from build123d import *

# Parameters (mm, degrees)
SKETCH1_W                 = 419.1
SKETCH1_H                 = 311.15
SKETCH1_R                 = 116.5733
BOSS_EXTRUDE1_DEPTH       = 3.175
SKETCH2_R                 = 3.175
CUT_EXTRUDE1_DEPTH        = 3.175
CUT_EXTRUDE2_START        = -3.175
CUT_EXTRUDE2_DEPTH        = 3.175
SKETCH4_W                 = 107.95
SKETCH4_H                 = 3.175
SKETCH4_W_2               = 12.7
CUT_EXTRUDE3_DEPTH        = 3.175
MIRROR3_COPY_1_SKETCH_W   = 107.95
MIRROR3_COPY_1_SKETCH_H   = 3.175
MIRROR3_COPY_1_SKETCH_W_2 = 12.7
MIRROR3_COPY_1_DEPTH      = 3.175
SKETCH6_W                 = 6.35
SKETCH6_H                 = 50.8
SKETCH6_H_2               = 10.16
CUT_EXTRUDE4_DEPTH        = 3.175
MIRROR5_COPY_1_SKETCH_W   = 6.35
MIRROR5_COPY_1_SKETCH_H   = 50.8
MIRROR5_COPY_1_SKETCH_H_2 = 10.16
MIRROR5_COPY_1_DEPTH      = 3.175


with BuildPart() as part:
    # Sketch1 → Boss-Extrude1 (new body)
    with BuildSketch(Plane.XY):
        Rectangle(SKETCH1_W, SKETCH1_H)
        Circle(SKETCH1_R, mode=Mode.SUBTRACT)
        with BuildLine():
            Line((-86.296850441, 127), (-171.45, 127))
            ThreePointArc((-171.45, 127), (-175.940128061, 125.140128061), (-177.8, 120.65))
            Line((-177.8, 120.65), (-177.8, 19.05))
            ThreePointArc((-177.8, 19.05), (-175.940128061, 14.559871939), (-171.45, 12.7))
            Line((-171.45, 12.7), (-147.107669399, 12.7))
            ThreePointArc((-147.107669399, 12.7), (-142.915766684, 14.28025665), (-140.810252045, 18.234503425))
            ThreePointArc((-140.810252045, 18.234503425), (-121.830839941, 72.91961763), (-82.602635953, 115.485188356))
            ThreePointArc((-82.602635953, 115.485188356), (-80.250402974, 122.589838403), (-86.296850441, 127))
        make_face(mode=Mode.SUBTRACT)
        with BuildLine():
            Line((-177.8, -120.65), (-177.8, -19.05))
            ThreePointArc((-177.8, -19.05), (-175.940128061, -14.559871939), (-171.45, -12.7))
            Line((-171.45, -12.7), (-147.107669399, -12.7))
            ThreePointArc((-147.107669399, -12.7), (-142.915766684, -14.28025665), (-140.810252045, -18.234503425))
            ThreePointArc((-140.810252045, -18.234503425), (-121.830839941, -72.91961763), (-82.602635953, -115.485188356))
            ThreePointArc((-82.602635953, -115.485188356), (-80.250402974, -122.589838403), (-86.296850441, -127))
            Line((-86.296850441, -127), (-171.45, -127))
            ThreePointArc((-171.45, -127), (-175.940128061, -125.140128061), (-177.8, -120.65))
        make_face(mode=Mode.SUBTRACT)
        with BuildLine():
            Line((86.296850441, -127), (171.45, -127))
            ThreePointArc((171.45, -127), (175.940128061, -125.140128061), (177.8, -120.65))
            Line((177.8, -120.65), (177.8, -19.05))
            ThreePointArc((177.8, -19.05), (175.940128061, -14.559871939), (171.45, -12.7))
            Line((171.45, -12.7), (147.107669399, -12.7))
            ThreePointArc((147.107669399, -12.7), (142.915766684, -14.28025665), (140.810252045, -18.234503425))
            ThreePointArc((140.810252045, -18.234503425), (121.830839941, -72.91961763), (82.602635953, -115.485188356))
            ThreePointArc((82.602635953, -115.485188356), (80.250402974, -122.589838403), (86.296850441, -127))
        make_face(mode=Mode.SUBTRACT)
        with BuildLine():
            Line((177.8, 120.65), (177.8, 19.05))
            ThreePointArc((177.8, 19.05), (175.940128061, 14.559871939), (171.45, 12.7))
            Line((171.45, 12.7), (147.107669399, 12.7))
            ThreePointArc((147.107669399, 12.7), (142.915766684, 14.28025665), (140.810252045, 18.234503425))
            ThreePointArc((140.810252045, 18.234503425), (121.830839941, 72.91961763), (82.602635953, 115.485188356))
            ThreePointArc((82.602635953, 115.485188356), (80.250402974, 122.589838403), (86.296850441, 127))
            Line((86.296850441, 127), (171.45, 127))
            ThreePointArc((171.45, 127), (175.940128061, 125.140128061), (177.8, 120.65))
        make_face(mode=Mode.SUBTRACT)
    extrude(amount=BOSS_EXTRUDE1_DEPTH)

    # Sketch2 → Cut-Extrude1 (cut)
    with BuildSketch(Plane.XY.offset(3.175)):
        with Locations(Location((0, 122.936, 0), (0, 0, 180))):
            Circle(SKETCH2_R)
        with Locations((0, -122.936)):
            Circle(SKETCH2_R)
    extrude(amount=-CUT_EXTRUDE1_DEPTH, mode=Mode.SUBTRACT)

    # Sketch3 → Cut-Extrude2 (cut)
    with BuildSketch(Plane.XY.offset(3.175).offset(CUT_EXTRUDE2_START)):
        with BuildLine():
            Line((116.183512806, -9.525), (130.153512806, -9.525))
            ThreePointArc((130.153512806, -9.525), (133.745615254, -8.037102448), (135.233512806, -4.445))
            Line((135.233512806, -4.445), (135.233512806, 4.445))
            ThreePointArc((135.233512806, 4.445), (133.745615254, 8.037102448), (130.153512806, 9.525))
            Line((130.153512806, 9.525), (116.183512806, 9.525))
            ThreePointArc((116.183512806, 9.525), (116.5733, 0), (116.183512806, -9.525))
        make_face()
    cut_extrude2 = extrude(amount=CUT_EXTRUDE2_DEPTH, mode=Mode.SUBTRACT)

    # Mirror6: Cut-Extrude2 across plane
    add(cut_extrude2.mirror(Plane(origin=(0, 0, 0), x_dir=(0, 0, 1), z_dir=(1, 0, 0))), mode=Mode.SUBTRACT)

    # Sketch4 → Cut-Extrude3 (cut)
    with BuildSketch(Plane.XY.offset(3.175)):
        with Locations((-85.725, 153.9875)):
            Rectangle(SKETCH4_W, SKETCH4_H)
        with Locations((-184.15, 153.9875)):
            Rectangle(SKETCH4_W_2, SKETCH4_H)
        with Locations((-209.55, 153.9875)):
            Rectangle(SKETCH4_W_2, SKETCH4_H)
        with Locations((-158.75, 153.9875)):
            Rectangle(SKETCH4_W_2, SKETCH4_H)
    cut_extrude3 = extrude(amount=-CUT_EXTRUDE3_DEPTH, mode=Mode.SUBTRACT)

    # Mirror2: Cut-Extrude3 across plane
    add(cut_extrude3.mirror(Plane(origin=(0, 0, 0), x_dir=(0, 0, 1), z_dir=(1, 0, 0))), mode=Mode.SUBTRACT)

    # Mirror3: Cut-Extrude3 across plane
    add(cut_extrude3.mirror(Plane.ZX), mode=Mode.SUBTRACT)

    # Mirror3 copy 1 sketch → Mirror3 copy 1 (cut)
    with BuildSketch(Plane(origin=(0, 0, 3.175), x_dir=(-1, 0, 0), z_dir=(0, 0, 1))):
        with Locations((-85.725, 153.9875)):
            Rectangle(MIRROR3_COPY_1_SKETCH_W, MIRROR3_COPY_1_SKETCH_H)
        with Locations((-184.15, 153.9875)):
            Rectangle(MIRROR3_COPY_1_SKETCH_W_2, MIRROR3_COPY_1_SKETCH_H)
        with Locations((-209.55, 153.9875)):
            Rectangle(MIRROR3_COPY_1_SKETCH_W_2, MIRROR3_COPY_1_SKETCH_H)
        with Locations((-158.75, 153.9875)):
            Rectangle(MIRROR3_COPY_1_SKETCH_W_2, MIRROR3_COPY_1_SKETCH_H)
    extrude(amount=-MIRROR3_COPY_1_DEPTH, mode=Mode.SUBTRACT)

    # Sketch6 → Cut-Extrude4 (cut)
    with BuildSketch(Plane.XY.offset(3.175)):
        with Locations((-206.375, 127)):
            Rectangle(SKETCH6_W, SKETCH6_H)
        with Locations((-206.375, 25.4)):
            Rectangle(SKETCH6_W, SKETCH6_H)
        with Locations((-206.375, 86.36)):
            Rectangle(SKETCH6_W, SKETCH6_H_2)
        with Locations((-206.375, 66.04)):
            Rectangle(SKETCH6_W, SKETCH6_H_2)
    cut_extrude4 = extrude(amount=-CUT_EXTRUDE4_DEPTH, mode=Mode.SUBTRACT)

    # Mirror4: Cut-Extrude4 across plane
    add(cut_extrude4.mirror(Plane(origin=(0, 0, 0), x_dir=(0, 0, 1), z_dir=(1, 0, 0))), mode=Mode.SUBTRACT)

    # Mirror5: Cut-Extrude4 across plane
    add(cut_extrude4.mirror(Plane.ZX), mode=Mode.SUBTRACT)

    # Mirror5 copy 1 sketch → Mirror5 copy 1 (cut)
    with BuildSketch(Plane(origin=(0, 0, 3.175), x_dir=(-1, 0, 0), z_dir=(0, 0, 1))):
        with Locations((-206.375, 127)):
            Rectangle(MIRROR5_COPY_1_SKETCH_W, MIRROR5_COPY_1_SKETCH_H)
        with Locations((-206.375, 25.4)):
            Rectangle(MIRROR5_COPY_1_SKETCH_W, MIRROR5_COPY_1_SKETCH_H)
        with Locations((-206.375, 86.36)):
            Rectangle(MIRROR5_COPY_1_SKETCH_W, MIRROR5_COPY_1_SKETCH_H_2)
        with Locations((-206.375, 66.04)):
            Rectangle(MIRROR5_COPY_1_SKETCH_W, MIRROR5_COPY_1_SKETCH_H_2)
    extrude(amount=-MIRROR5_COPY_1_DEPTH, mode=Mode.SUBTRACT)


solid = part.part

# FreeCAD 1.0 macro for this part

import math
import FreeCAD as App
import Part
import Sketcher

V = App.Vector
Q = App.Units.Quantity

doc = App.newDocument("Part")
body = doc.addObject("PartDesign::Body", "Body")

sketch1 = doc.addObject("Sketcher::SketchObject", "Sketch")
body.addObject(sketch1)
sketch1.AttachmentSupport = (doc.XY_Plane, [""])
sketch1.MapMode = "FlatFace"
sketch1.addGeometry([
    Part.LineSegment(V(-210, 156, 0), V(-210, -156, 0)),
    Part.LineSegment(V(-210, -156, 0), V(210, -156, 0)),
    Part.LineSegment(V(210, -156, 0), V(210, 156, 0)),
    Part.LineSegment(V(210, 156, 0), V(-210, 156, 0)),
    Part.ArcOfCircle(Part.Circle(V(-171, -121, 0), V(0, 0, 1), 6), math.radians(180), math.radians(270)),
    Part.LineSegment(V(-178, -121, 0), V(-178, -19, 0)),
    Part.ArcOfCircle(Part.Circle(V(-171, -19, 0), V(0, 0, 1), 6), math.radians(90), math.radians(180)),
    Part.LineSegment(V(-171, -13, 0), V(-147, -13, 0)),
    Part.ArcOfCircle(Part.Circle(V(-147, -19, 0), V(0, 0, 1), 6), math.radians(7), math.radians(90)),
    Part.ArcOfCircle(Part.Circle(V(0, 0, 0), V(0, 0, 1), 142), math.radians(-173), math.radians(-126)),
    Part.ArcOfCircle(Part.Circle(V(-86, -121, 0), V(0, 0, 1), 6), math.radians(-90), math.radians(54)),
    Part.LineSegment(V(-86, -127, 0), V(-171, -127, 0)),
    Part.LineSegment(V(171, -127, 0), V(86, -127, 0)),
    Part.ArcOfCircle(Part.Circle(V(86, -121, 0), V(0, 0, 1), 6), math.radians(126), math.radians(270)),
    Part.ArcOfCircle(Part.Circle(V(0, 0, 0), V(0, 0, 1), 142), math.radians(-54), math.radians(-7)),
    Part.ArcOfCircle(Part.Circle(V(147, -19, 0), V(0, 0, 1), 6), math.radians(90), math.radians(173)),
    Part.LineSegment(V(147, -13, 0), V(171, -13, 0)),
    Part.ArcOfCircle(Part.Circle(V(171, -19, 0), V(0, 0, 1), 6), math.radians(0), math.radians(90)),
    Part.LineSegment(V(178, -19, 0), V(178, -121, 0)),
    Part.ArcOfCircle(Part.Circle(V(171, -121, 0), V(0, 0, 1), 6), math.radians(-90), math.radians(0)),
    Part.LineSegment(V(-171, 127, 0), V(-86, 127, 0)),
    Part.ArcOfCircle(Part.Circle(V(-86, 121, 0), V(0, 0, 1), 6), math.radians(-54), math.radians(90)),
    Part.ArcOfCircle(Part.Circle(V(0, 0, 0), V(0, 0, 1), 142), math.radians(126), math.radians(173)),
    Part.ArcOfCircle(Part.Circle(V(-147, 19, 0), V(0, 0, 1), 6), math.radians(-90), math.radians(-7)),
    Part.LineSegment(V(-147, 13, 0), V(-171, 13, 0)),
    Part.ArcOfCircle(Part.Circle(V(-171, 19, 0), V(0, 0, 1), 6), math.radians(180), math.radians(270)),
    Part.LineSegment(V(-178, 19, 0), V(-178, 121, 0)),
    Part.ArcOfCircle(Part.Circle(V(-171, 121, 0), V(0, 0, 1), 6), math.radians(90), math.radians(180)),
    Part.Circle(V(0, 0, 0), V(0, 0, 1), 117),
    Part.ArcOfCircle(Part.Circle(V(171, 121, 0), V(0, 0, 1), 6), math.radians(0), math.radians(90)),
    Part.LineSegment(V(178, 121, 0), V(178, 19, 0)),
    Part.ArcOfCircle(Part.Circle(V(171, 19, 0), V(0, 0, 1), 6), math.radians(-90), math.radians(0)),
    Part.LineSegment(V(171, 13, 0), V(147, 13, 0)),
    Part.ArcOfCircle(Part.Circle(V(147, 19, 0), V(0, 0, 1), 6), math.radians(-173), math.radians(-90)),
    Part.ArcOfCircle(Part.Circle(V(0, 0, 0), V(0, 0, 1), 142), math.radians(7), math.radians(54)),
    Part.ArcOfCircle(Part.Circle(V(86, 121, 0), V(0, 0, 1), 6), math.radians(90), math.radians(234)),
    Part.LineSegment(V(86, 127, 0), V(171, 127, 0)),
], False)
sketch1.addConstraint([
    Sketcher.Constraint("Coincident", 0, 2, 1, 1),
    Sketcher.Constraint("Coincident", 1, 2, 2, 1),
    Sketcher.Constraint("Coincident", 2, 2, 3, 1),
    Sketcher.Constraint("Coincident", 3, 2, 0, 1),
    Sketcher.Constraint("Tangent", 4, 1, 5, 1),
    Sketcher.Constraint("Tangent", 5, 2, 6, 2),
    Sketcher.Constraint("Tangent", 6, 1, 7, 1),
    Sketcher.Constraint("Tangent", 7, 2, 8, 2),
    Sketcher.Constraint("Tangent", 8, 1, 9, 1),
    Sketcher.Constraint("Tangent", 9, 2, 10, 2),
    Sketcher.Constraint("Tangent", 10, 1, 11, 1),
    Sketcher.Constraint("Tangent", 11, 2, 4, 2),
    Sketcher.Constraint("Tangent", 12, 2, 13, 2),
    Sketcher.Constraint("Tangent", 13, 1, 14, 1),
    Sketcher.Constraint("Tangent", 14, 2, 15, 2),
    Sketcher.Constraint("Tangent", 15, 1, 16, 1),
    Sketcher.Constraint("Tangent", 16, 2, 17, 2),
    Sketcher.Constraint("Tangent", 17, 1, 18, 1),
    Sketcher.Constraint("Tangent", 18, 2, 19, 2),
    Sketcher.Constraint("Tangent", 19, 1, 12, 1),
    Sketcher.Constraint("Tangent", 20, 2, 21, 2),
    Sketcher.Constraint("Tangent", 21, 1, 22, 1),
    Sketcher.Constraint("Tangent", 22, 2, 23, 2),
    Sketcher.Constraint("Tangent", 23, 1, 24, 1),
    Sketcher.Constraint("Tangent", 24, 2, 25, 2),
    Sketcher.Constraint("Tangent", 25, 1, 26, 1),
    Sketcher.Constraint("Tangent", 26, 2, 27, 2),
    Sketcher.Constraint("Tangent", 27, 1, 20, 1),
    Sketcher.Constraint("Tangent", 29, 1, 30, 1),
    Sketcher.Constraint("Tangent", 30, 2, 31, 2),
    Sketcher.Constraint("Tangent", 31, 1, 32, 1),
    Sketcher.Constraint("Tangent", 32, 2, 33, 2),
    Sketcher.Constraint("Tangent", 33, 1, 34, 1),
    Sketcher.Constraint("Tangent", 34, 2, 35, 2),
    Sketcher.Constraint("Tangent", 35, 1, 36, 1),
    Sketcher.Constraint("Tangent", 36, 2, 29, 2),
    Sketcher.Constraint("Vertical", 0),
    Sketcher.Constraint("Horizontal", 1),
    Sketcher.Constraint("Vertical", 2),
    Sketcher.Constraint("Horizontal", 3),
    Sketcher.Constraint("Vertical", 5),
    Sketcher.Constraint("Horizontal", 7),
    Sketcher.Constraint("Horizontal", 11),
    Sketcher.Constraint("Horizontal", 12),
    Sketcher.Constraint("Horizontal", 16),
    Sketcher.Constraint("Vertical", 18),
    Sketcher.Constraint("Horizontal", 20),
    Sketcher.Constraint("Horizontal", 24),
    Sketcher.Constraint("Vertical", 26),
    Sketcher.Constraint("Vertical", 30),
    Sketcher.Constraint("Horizontal", 32),
    Sketcher.Constraint("Horizontal", 36),
    Sketcher.Constraint("Coincident", 9, 3, -1, 1),
    Sketcher.Constraint("Coincident", 14, 3, -1, 1),
    Sketcher.Constraint("Coincident", 22, 3, -1, 1),
    Sketcher.Constraint("Coincident", 28, 3, -1, 1),
    Sketcher.Constraint("Coincident", 34, 3, -1, 1),
    Sketcher.Constraint("Equal", 4, 6),
    Sketcher.Constraint("Equal", 6, 8),
    Sketcher.Constraint("Equal", 8, 10),
    Sketcher.Constraint("Equal", 10, 13),
    Sketcher.Constraint("Equal", 9, 14),
    Sketcher.Constraint("Equal", 13, 15),
    Sketcher.Constraint("Equal", 15, 17),
    Sketcher.Constraint("Equal", 17, 19),
    Sketcher.Constraint("Equal", 19, 21),
    Sketcher.Constraint("Equal", 14, 22),
    Sketcher.Constraint("Equal", 21, 23),
    Sketcher.Constraint("Equal", 23, 25),
    Sketcher.Constraint("Equal", 25, 27),
    Sketcher.Constraint("Equal", 27, 29),
    Sketcher.Constraint("Equal", 29, 31),
    Sketcher.Constraint("Equal", 31, 33),
    Sketcher.Constraint("Equal", 22, 34),
    Sketcher.Constraint("Equal", 33, 35),
    Sketcher.Constraint("Symmetric", 17, 3, 25, 3, -1, 1),
    Sketcher.Constraint("Symmetric", 4, 3, 29, 3, -1, 1),
    Sketcher.Constraint("Symmetric", 0, 2, 2, 2, -1, 1),
    Sketcher.Constraint("Symmetric", 6, 3, 17, 3, -2),
    Sketcher.Constraint("Horizontal", 10, 3, 13, 3),
    Sketcher.Constraint("Horizontal", 27, 3, 29, 3),
    Sketcher.Constraint("Horizontal", 25, 3, 31, 3),
    Sketcher.Constraint("DistanceY", 5, 1, 5, 2, Q("4 in")),
    Sketcher.Constraint("Radius", 4, Q("0.25 in")),
    Sketcher.Constraint("Radius", 9, Q("5.59 in")),
    Sketcher.Constraint("Diameter", 28, Q("9.179 in")),
    Sketcher.Constraint("DistanceX", 1, 1, 1, 2, Q("16.5 in")),
    Sketcher.Constraint("DistanceX", 4, 1, -1, 1, Q("7 in")),
    Sketcher.Constraint("DistanceY", 10, 1, -1, 1, Q("5 in")),
    Sketcher.Constraint("DistanceY", 0, 2, 0, 1, Q("12.25 in")),
])
pad1 = doc.addObject("PartDesign::Pad", "Pad")
body.addObject(pad1)
pad1.Profile = sketch1
pad1.Length = Q("0.125 in")

sketch2 = doc.addObject("Sketcher::SketchObject", "Sketch001")
body.addObject(sketch2)
sketch2.AttachmentSupport = (doc.XY_Plane, [""])
sketch2.MapMode = "FlatFace"
sketch2.AttachmentOffset = App.Placement(V(0, 0, 0.125 * 25.4), App.Rotation())
sketch2.addGeometry([
    Part.Circle(V(0, 122.9, 0), V(0, 0, 1), 3.2),
    Part.Circle(V(0, -122.9, 0), V(0, 0, 1), 3.2),
], False)
sketch2.addConstraint([
    Sketcher.Constraint("Equal", 0, 1),
    Sketcher.Constraint("Symmetric", 0, 3, 1, 3, -1, 1),
    Sketcher.Constraint("PointOnObject", 0, 3, -2),
    Sketcher.Constraint("Diameter", 0, Q("0.25 in")),
    Sketcher.Constraint("DistanceY", -1, 1, 0, 3, Q("4.84 in")),
])
pocket1 = doc.addObject("PartDesign::Pocket", "Pocket")
body.addObject(pocket1)
pocket1.Profile = sketch2
pocket1.Length = Q("0.125 in")

sketch3 = doc.addObject("Sketcher::SketchObject", "Sketch002")
body.addObject(sketch3)
sketch3.AttachmentSupport = (doc.XY_Plane, [""])
sketch3.MapMode = "FlatFace"
sketch3.addGeometry([
    Part.LineSegment(V(116, -10, 0), V(130, -10, 0)),
    Part.ArcOfCircle(Part.Circle(V(130, -4, 0), V(0, 0, 1), 5), math.radians(-90), math.radians(0)),
    Part.LineSegment(V(135, -4, 0), V(135, 4, 0)),
    Part.ArcOfCircle(Part.Circle(V(130, 4, 0), V(0, 0, 1), 5), math.radians(0), math.radians(90)),
    Part.LineSegment(V(130, 10, 0), V(116, 10, 0)),
    Part.ArcOfCircle(Part.Circle(V(0, 0, 0), V(0, 0, 1), 117), math.radians(-4.69), math.radians(4.69)),
], False)
sketch3.addConstraint([
    Sketcher.Constraint("Tangent", 0, 2, 1, 1),
    Sketcher.Constraint("Tangent", 1, 2, 2, 1),
    Sketcher.Constraint("Tangent", 2, 2, 3, 1),
    Sketcher.Constraint("Tangent", 3, 2, 4, 1),
    Sketcher.Constraint("Coincident", 4, 2, 5, 2),
    Sketcher.Constraint("Coincident", 5, 1, 0, 1),
    Sketcher.Constraint("Horizontal", 0),
    Sketcher.Constraint("Vertical", 2),
    Sketcher.Constraint("Horizontal", 4),
    Sketcher.Constraint("Coincident", 5, 3, -1, 1),
    Sketcher.Constraint("Equal", 1, 3),
    Sketcher.Constraint("Vertical", 4, 2, 5, 1),
    Sketcher.Constraint("Radius", 1, Q("0.2 in")),
    Sketcher.Constraint("DistanceX", 0, 1, 0, 2, Q("0.55 in")),
    Sketcher.Constraint("DistanceY", 2, 1, 2, 2, Q("0.35 in")),
    Sketcher.Constraint("Radius", 5, Q("4.5895 in")),
])
pocket2 = doc.addObject("PartDesign::Pocket", "Pocket001")
body.addObject(pocket2)
pocket2.Profile = sketch3
pocket2.Length = Q("0.125 in")
pocket2.Reversed = True
doc.recompute()

mirrored = doc.addObject("PartDesign::Mirrored", "Mirrored")
body.addObject(mirrored)
mirrored.Originals = [pocket2]
mirrored.MirrorPlane = (doc.YZ_Plane, [""])
body.Tip = mirrored

sketch4 = doc.addObject("Sketcher::SketchObject", "Sketch003")
body.addObject(sketch4)
sketch4.AttachmentSupport = (doc.XY_Plane, [""])
sketch4.MapMode = "FlatFace"
sketch4.AttachmentOffset = App.Placement(V(0, 0, 0.125 * 25.4), App.Rotation())
sketch4.addGeometry([
    Part.LineSegment(V(-139.7, 155.6, 0), V(-139.7, 152.4, 0)),
    Part.LineSegment(V(-139.7, 152.4, 0), V(-31.8, 152.4, 0)),
    Part.LineSegment(V(-31.8, 152.4, 0), V(-31.8, 155.6, 0)),
    Part.LineSegment(V(-31.8, 155.6, 0), V(-139.7, 155.6, 0)),
    Part.LineSegment(V(-190.5, 155.6, 0), V(-190.5, 152.4, 0)),
    Part.LineSegment(V(-190.5, 152.4, 0), V(-177.8, 152.4, 0)),
    Part.LineSegment(V(-177.8, 152.4, 0), V(-177.8, 155.6, 0)),
    Part.LineSegment(V(-177.8, 155.6, 0), V(-190.5, 155.6, 0)),
    Part.LineSegment(V(-215.9, 155.6, 0), V(-215.9, 152.4, 0)),
    Part.LineSegment(V(-215.9, 152.4, 0), V(-203.2, 152.4, 0)),
    Part.LineSegment(V(-203.2, 152.4, 0), V(-203.2, 155.6, 0)),
    Part.LineSegment(V(-203.2, 155.6, 0), V(-215.9, 155.6, 0)),
    Part.LineSegment(V(-165.1, 155.6, 0), V(-165.1, 152.4, 0)),
    Part.LineSegment(V(-165.1, 152.4, 0), V(-152.4, 152.4, 0)),
    Part.LineSegment(V(-152.4, 152.4, 0), V(-152.4, 155.6, 0)),
    Part.LineSegment(V(-152.4, 155.6, 0), V(-165.1, 155.6, 0)),
], False)
sketch4.addConstraint([
    Sketcher.Constraint("Coincident", 0, 2, 1, 1),
    Sketcher.Constraint("Coincident", 1, 2, 2, 1),
    Sketcher.Constraint("Coincident", 2, 2, 3, 1),
    Sketcher.Constraint("Coincident", 3, 2, 0, 1),
    Sketcher.Constraint("Coincident", 4, 2, 5, 1),
    Sketcher.Constraint("Coincident", 5, 2, 6, 1),
    Sketcher.Constraint("Coincident", 6, 2, 7, 1),
    Sketcher.Constraint("Coincident", 7, 2, 4, 1),
    Sketcher.Constraint("Coincident", 8, 2, 9, 1),
    Sketcher.Constraint("Coincident", 9, 2, 10, 1),
    Sketcher.Constraint("Coincident", 10, 2, 11, 1),
    Sketcher.Constraint("Coincident", 11, 2, 8, 1),
    Sketcher.Constraint("Coincident", 12, 2, 13, 1),
    Sketcher.Constraint("Coincident", 13, 2, 14, 1),
    Sketcher.Constraint("Coincident", 14, 2, 15, 1),
    Sketcher.Constraint("Coincident", 15, 2, 12, 1),
    Sketcher.Constraint("Vertical", 0),
    Sketcher.Constraint("Horizontal", 1),
    Sketcher.Constraint("Vertical", 2),
    Sketcher.Constraint("Horizontal", 3),
    Sketcher.Constraint("Vertical", 4),
    Sketcher.Constraint("Horizontal", 5),
    Sketcher.Constraint("Vertical", 6),
    Sketcher.Constraint("Horizontal", 7),
    Sketcher.Constraint("Vertical", 8),
    Sketcher.Constraint("Horizontal", 9),
    Sketcher.Constraint("Vertical", 10),
    Sketcher.Constraint("Horizontal", 11),
    Sketcher.Constraint("Vertical", 12),
    Sketcher.Constraint("Horizontal", 13),
    Sketcher.Constraint("Vertical", 14),
    Sketcher.Constraint("Horizontal", 15),
    Sketcher.Constraint("Horizontal", 1, 2, 4, 2),
    Sketcher.Constraint("Horizontal", 3, 2, 6, 2),
    Sketcher.Constraint("Horizontal", 5, 2, 8, 2),
    Sketcher.Constraint("Horizontal", 7, 2, 10, 2),
    Sketcher.Constraint("Horizontal", 9, 2, 12, 2),
    Sketcher.Constraint("Horizontal", 11, 2, 14, 2),
    Sketcher.Constraint("Equal", 7, 9),
    Sketcher.Constraint("Equal", 11, 13),
    Sketcher.Constraint("DistanceX", 5, 1, 5, 2, Q("0.5 in")),
    Sketcher.Constraint("DistanceY", -1, 1, 0, 2, Q("6 in")),
    Sketcher.Constraint("DistanceX", 5, 2, -1, 1, Q("7 in")),
    Sketcher.Constraint("DistanceX", 9, 2, -1, 1, Q("8 in")),
    Sketcher.Constraint("DistanceX", 13, 2, -1, 1, Q("6 in")),
    Sketcher.Constraint("DistanceX", 4, 2, 0, 2, Q("2 in")),
    Sketcher.Constraint("DistanceX", 1, 1, 1, 2, Q("4.25 in")),
    Sketcher.Constraint("DistanceY", 0, 2, 0, 1, Q("0.125 in")),
])
pocket3 = doc.addObject("PartDesign::Pocket", "Pocket002")
body.addObject(pocket3)
pocket3.Profile = sketch4
pocket3.Length = Q("0.125 in")
doc.recompute()

mirrored2 = doc.addObject("PartDesign::Mirrored", "Mirrored001")
body.addObject(mirrored2)
mirrored2.Originals = [pocket3]
mirrored2.MirrorPlane = (doc.YZ_Plane, [""])
body.Tip = mirrored2
doc.recompute()

mirrored3 = doc.addObject("PartDesign::Mirrored", "Mirrored002")
body.addObject(mirrored3)
mirrored3.Originals = [pocket3]
mirrored3.MirrorPlane = (doc.XZ_Plane, [""])
body.Tip = mirrored3

sketch5 = doc.addObject("Sketcher::SketchObject", "Sketch004")
body.addObject(sketch5)
sketch5.AttachmentSupport = (doc.XY_Plane, [""])
sketch5.MapMode = "FlatFace"
sketch5.AttachmentOffset = App.Placement(V(0, 0, 0.125 * 25.4), App.Rotation())
sketch5.addGeometry([
    Part.LineSegment(V(139.7, -155.6, 0), V(139.7, -152.4, 0)),
    Part.LineSegment(V(139.7, -152.4, 0), V(31.8, -152.4, 0)),
    Part.LineSegment(V(31.8, -152.4, 0), V(31.8, -155.6, 0)),
    Part.LineSegment(V(31.8, -155.6, 0), V(139.7, -155.6, 0)),
    Part.LineSegment(V(190.5, -155.6, 0), V(190.5, -152.4, 0)),
    Part.LineSegment(V(190.5, -152.4, 0), V(177.8, -152.4, 0)),
    Part.LineSegment(V(177.8, -152.4, 0), V(177.8, -155.6, 0)),
    Part.LineSegment(V(177.8, -155.6, 0), V(190.5, -155.6, 0)),
    Part.LineSegment(V(215.9, -155.6, 0), V(215.9, -152.4, 0)),
    Part.LineSegment(V(215.9, -152.4, 0), V(203.2, -152.4, 0)),
    Part.LineSegment(V(203.2, -152.4, 0), V(203.2, -155.6, 0)),
    Part.LineSegment(V(203.2, -155.6, 0), V(215.9, -155.6, 0)),
    Part.LineSegment(V(165.1, -155.6, 0), V(165.1, -152.4, 0)),
    Part.LineSegment(V(165.1, -152.4, 0), V(152.4, -152.4, 0)),
    Part.LineSegment(V(152.4, -152.4, 0), V(152.4, -155.6, 0)),
    Part.LineSegment(V(152.4, -155.6, 0), V(165.1, -155.6, 0)),
], False)
sketch5.addConstraint([
    Sketcher.Constraint("Coincident", 0, 2, 1, 1),
    Sketcher.Constraint("Coincident", 1, 2, 2, 1),
    Sketcher.Constraint("Coincident", 2, 2, 3, 1),
    Sketcher.Constraint("Coincident", 3, 2, 0, 1),
    Sketcher.Constraint("Coincident", 4, 2, 5, 1),
    Sketcher.Constraint("Coincident", 5, 2, 6, 1),
    Sketcher.Constraint("Coincident", 6, 2, 7, 1),
    Sketcher.Constraint("Coincident", 7, 2, 4, 1),
    Sketcher.Constraint("Coincident", 8, 2, 9, 1),
    Sketcher.Constraint("Coincident", 9, 2, 10, 1),
    Sketcher.Constraint("Coincident", 10, 2, 11, 1),
    Sketcher.Constraint("Coincident", 11, 2, 8, 1),
    Sketcher.Constraint("Coincident", 12, 2, 13, 1),
    Sketcher.Constraint("Coincident", 13, 2, 14, 1),
    Sketcher.Constraint("Coincident", 14, 2, 15, 1),
    Sketcher.Constraint("Coincident", 15, 2, 12, 1),
    Sketcher.Constraint("Vertical", 0),
    Sketcher.Constraint("Horizontal", 1),
    Sketcher.Constraint("Vertical", 2),
    Sketcher.Constraint("Horizontal", 3),
    Sketcher.Constraint("Vertical", 4),
    Sketcher.Constraint("Horizontal", 5),
    Sketcher.Constraint("Vertical", 6),
    Sketcher.Constraint("Horizontal", 7),
    Sketcher.Constraint("Vertical", 8),
    Sketcher.Constraint("Horizontal", 9),
    Sketcher.Constraint("Vertical", 10),
    Sketcher.Constraint("Horizontal", 11),
    Sketcher.Constraint("Vertical", 12),
    Sketcher.Constraint("Horizontal", 13),
    Sketcher.Constraint("Vertical", 14),
    Sketcher.Constraint("Horizontal", 15),
    Sketcher.Constraint("Horizontal", 1, 2, 4, 2),
    Sketcher.Constraint("Horizontal", 3, 2, 6, 2),
    Sketcher.Constraint("Horizontal", 5, 2, 8, 2),
    Sketcher.Constraint("Horizontal", 7, 2, 10, 2),
    Sketcher.Constraint("Horizontal", 9, 2, 12, 2),
    Sketcher.Constraint("Horizontal", 11, 2, 14, 2),
    Sketcher.Constraint("Equal", 7, 9),
    Sketcher.Constraint("Equal", 11, 13),
    Sketcher.Constraint("DistanceX", 5, 2, 5, 1, Q("0.5 in")),
    Sketcher.Constraint("DistanceY", 0, 2, -1, 1, Q("6 in")),
    Sketcher.Constraint("DistanceX", -1, 1, 5, 2, Q("7 in")),
    Sketcher.Constraint("DistanceX", -1, 1, 9, 2, Q("8 in")),
    Sketcher.Constraint("DistanceX", -1, 1, 13, 2, Q("6 in")),
    Sketcher.Constraint("DistanceX", 0, 2, 4, 2, Q("2 in")),
    Sketcher.Constraint("DistanceX", 1, 2, 1, 1, Q("4.25 in")),
    Sketcher.Constraint("DistanceY", 0, 1, 0, 2, Q("0.125 in")),
])
pocket4 = doc.addObject("PartDesign::Pocket", "Pocket003")
body.addObject(pocket4)
pocket4.Profile = sketch5
pocket4.Length = Q("0.125 in")

sketch6 = doc.addObject("Sketcher::SketchObject", "Sketch005")
body.addObject(sketch6)
sketch6.AttachmentSupport = (doc.XY_Plane, [""])
sketch6.MapMode = "FlatFace"
sketch6.AttachmentOffset = App.Placement(V(0, 0, 0.125 * 25.4), App.Rotation())
sketch6.addGeometry([
    Part.LineSegment(V(-210, 152, 0), V(-210, 102, 0)),
    Part.LineSegment(V(-210, 102, 0), V(-203, 102, 0)),
    Part.LineSegment(V(-203, 102, 0), V(-203, 152, 0)),
    Part.LineSegment(V(-203, 152, 0), V(-210, 152, 0)),
    Part.LineSegment(V(-210, 51, 0), V(-210, 0, 0)),
    Part.LineSegment(V(-210, 0, 0), V(-203, 0, 0)),
    Part.LineSegment(V(-203, 0, 0), V(-203, 51, 0)),
    Part.LineSegment(V(-203, 51, 0), V(-210, 51, 0)),
    Part.LineSegment(V(-210, 91, 0), V(-210, 81, 0)),
    Part.LineSegment(V(-210, 81, 0), V(-203, 81, 0)),
    Part.LineSegment(V(-203, 81, 0), V(-203, 91, 0)),
    Part.LineSegment(V(-203, 91, 0), V(-210, 91, 0)),
    Part.LineSegment(V(-210, 71, 0), V(-210, 61, 0)),
    Part.LineSegment(V(-210, 61, 0), V(-203, 61, 0)),
    Part.LineSegment(V(-203, 61, 0), V(-203, 71, 0)),
    Part.LineSegment(V(-203, 71, 0), V(-210, 71, 0)),
], False)
sketch6.addConstraint([
    Sketcher.Constraint("Coincident", 0, 2, 1, 1),
    Sketcher.Constraint("Coincident", 1, 2, 2, 1),
    Sketcher.Constraint("Coincident", 2, 2, 3, 1),
    Sketcher.Constraint("Coincident", 3, 2, 0, 1),
    Sketcher.Constraint("Coincident", 4, 2, 5, 1),
    Sketcher.Constraint("Coincident", 5, 2, 6, 1),
    Sketcher.Constraint("Coincident", 6, 2, 7, 1),
    Sketcher.Constraint("Coincident", 7, 2, 4, 1),
    Sketcher.Constraint("Coincident", 8, 2, 9, 1),
    Sketcher.Constraint("Coincident", 9, 2, 10, 1),
    Sketcher.Constraint("Coincident", 10, 2, 11, 1),
    Sketcher.Constraint("Coincident", 11, 2, 8, 1),
    Sketcher.Constraint("Coincident", 12, 2, 13, 1),
    Sketcher.Constraint("Coincident", 13, 2, 14, 1),
    Sketcher.Constraint("Coincident", 14, 2, 15, 1),
    Sketcher.Constraint("Coincident", 15, 2, 12, 1),
    Sketcher.Constraint("Vertical", 0),
    Sketcher.Constraint("Horizontal", 1),
    Sketcher.Constraint("Vertical", 2),
    Sketcher.Constraint("Horizontal", 3),
    Sketcher.Constraint("Vertical", 4),
    Sketcher.Constraint("Horizontal", 5),
    Sketcher.Constraint("Vertical", 6),
    Sketcher.Constraint("Horizontal", 7),
    Sketcher.Constraint("Vertical", 8),
    Sketcher.Constraint("Horizontal", 9),
    Sketcher.Constraint("Vertical", 10),
    Sketcher.Constraint("Horizontal", 11),
    Sketcher.Constraint("Vertical", 12),
    Sketcher.Constraint("Horizontal", 13),
    Sketcher.Constraint("Vertical", 14),
    Sketcher.Constraint("Horizontal", 15),
    Sketcher.Constraint("PointOnObject", 4, 2, -1),
    Sketcher.Constraint("Vertical", 3, 2, 4, 2),
    Sketcher.Constraint("Vertical", 2, 2, 5, 2),
    Sketcher.Constraint("Vertical", 7, 2, 8, 2),
    Sketcher.Constraint("Vertical", 6, 2, 9, 2),
    Sketcher.Constraint("Vertical", 11, 2, 12, 2),
    Sketcher.Constraint("Vertical", 10, 2, 13, 2),
    Sketcher.Constraint("Equal", 2, 4),
    Sketcher.Constraint("Equal", 10, 12),
    Sketcher.Constraint("DistanceY", 0, 2, 0, 1, Q("2 in")),
    Sketcher.Constraint("DistanceY", 8, 2, 8, 1, Q("0.4 in")),
    Sketcher.Constraint("DistanceY", -1, 1, 0, 2, Q("4 in")),
    Sketcher.Constraint("DistanceX", 1, 2, -1, 1, Q("8 in")),
    Sketcher.Constraint("DistanceX", 1, 1, 1, 2, Q("0.25 in")),
    Sketcher.Constraint("DistanceY", -1, 1, 8, 2, Q("3.2 in")),
    Sketcher.Constraint("DistanceY", -1, 1, 12, 2, Q("2.4 in")),
])
pocket5 = doc.addObject("PartDesign::Pocket", "Pocket004")
body.addObject(pocket5)
pocket5.Profile = sketch6
pocket5.Length = Q("0.125 in")
doc.recompute()

mirrored4 = doc.addObject("PartDesign::Mirrored", "Mirrored003")
body.addObject(mirrored4)
mirrored4.Originals = [pocket5]
mirrored4.MirrorPlane = (doc.YZ_Plane, [""])
body.Tip = mirrored4
doc.recompute()

mirrored5 = doc.addObject("PartDesign::Mirrored", "Mirrored004")
body.addObject(mirrored5)
mirrored5.Originals = [pocket5]
mirrored5.MirrorPlane = (doc.XZ_Plane, [""])
body.Tip = mirrored5

sketch7 = doc.addObject("Sketcher::SketchObject", "Sketch006")
body.addObject(sketch7)
sketch7.AttachmentSupport = (doc.XY_Plane, [""])
sketch7.MapMode = "FlatFace"
sketch7.AttachmentOffset = App.Placement(V(0, 0, 0.125 * 25.4), App.Rotation())
sketch7.addGeometry([
    Part.LineSegment(V(210, -152, 0), V(210, -102, 0)),
    Part.LineSegment(V(210, -102, 0), V(203, -102, 0)),
    Part.LineSegment(V(203, -102, 0), V(203, -152, 0)),
    Part.LineSegment(V(203, -152, 0), V(210, -152, 0)),
    Part.LineSegment(V(210, -51, 0), V(210, 0, 0)),
    Part.LineSegment(V(210, 0, 0), V(203, 0, 0)),
    Part.LineSegment(V(203, 0, 0), V(203, -51, 0)),
    Part.LineSegment(V(203, -51, 0), V(210, -51, 0)),
    Part.LineSegment(V(210, -91, 0), V(210, -81, 0)),
    Part.LineSegment(V(210, -81, 0), V(203, -81, 0)),
    Part.LineSegment(V(203, -81, 0), V(203, -91, 0)),
    Part.LineSegment(V(203, -91, 0), V(210, -91, 0)),
    Part.LineSegment(V(210, -71, 0), V(210, -61, 0)),
    Part.LineSegment(V(210, -61, 0), V(203, -61, 0)),
    Part.LineSegment(V(203, -61, 0), V(203, -71, 0)),
    Part.LineSegment(V(203, -71, 0), V(210, -71, 0)),
], False)
sketch7.addConstraint([
    Sketcher.Constraint("Coincident", 0, 2, 1, 1),
    Sketcher.Constraint("Coincident", 1, 2, 2, 1),
    Sketcher.Constraint("Coincident", 2, 2, 3, 1),
    Sketcher.Constraint("Coincident", 3, 2, 0, 1),
    Sketcher.Constraint("Coincident", 4, 2, 5, 1),
    Sketcher.Constraint("Coincident", 5, 2, 6, 1),
    Sketcher.Constraint("Coincident", 6, 2, 7, 1),
    Sketcher.Constraint("Coincident", 7, 2, 4, 1),
    Sketcher.Constraint("Coincident", 8, 2, 9, 1),
    Sketcher.Constraint("Coincident", 9, 2, 10, 1),
    Sketcher.Constraint("Coincident", 10, 2, 11, 1),
    Sketcher.Constraint("Coincident", 11, 2, 8, 1),
    Sketcher.Constraint("Coincident", 12, 2, 13, 1),
    Sketcher.Constraint("Coincident", 13, 2, 14, 1),
    Sketcher.Constraint("Coincident", 14, 2, 15, 1),
    Sketcher.Constraint("Coincident", 15, 2, 12, 1),
    Sketcher.Constraint("Vertical", 0),
    Sketcher.Constraint("Horizontal", 1),
    Sketcher.Constraint("Vertical", 2),
    Sketcher.Constraint("Horizontal", 3),
    Sketcher.Constraint("Vertical", 4),
    Sketcher.Constraint("Horizontal", 5),
    Sketcher.Constraint("Vertical", 6),
    Sketcher.Constraint("Horizontal", 7),
    Sketcher.Constraint("Vertical", 8),
    Sketcher.Constraint("Horizontal", 9),
    Sketcher.Constraint("Vertical", 10),
    Sketcher.Constraint("Horizontal", 11),
    Sketcher.Constraint("Vertical", 12),
    Sketcher.Constraint("Horizontal", 13),
    Sketcher.Constraint("Vertical", 14),
    Sketcher.Constraint("Horizontal", 15),
    Sketcher.Constraint("PointOnObject", 4, 2, -1),
    Sketcher.Constraint("Vertical", 3, 2, 4, 2),
    Sketcher.Constraint("Vertical", 2, 2, 5, 2),
    Sketcher.Constraint("Vertical", 7, 2, 8, 2),
    Sketcher.Constraint("Vertical", 6, 2, 9, 2),
    Sketcher.Constraint("Vertical", 11, 2, 12, 2),
    Sketcher.Constraint("Vertical", 10, 2, 13, 2),
    Sketcher.Constraint("Equal", 2, 4),
    Sketcher.Constraint("Equal", 10, 12),
    Sketcher.Constraint("DistanceY", 0, 1, 0, 2, Q("2 in")),
    Sketcher.Constraint("DistanceY", 8, 1, 8, 2, Q("0.4 in")),
    Sketcher.Constraint("DistanceY", 0, 2, -1, 1, Q("4 in")),
    Sketcher.Constraint("DistanceX", -1, 1, 1, 2, Q("8 in")),
    Sketcher.Constraint("DistanceX", 1, 2, 1, 1, Q("0.25 in")),
    Sketcher.Constraint("DistanceY", 8, 2, -1, 1, Q("3.2 in")),
    Sketcher.Constraint("DistanceY", 12, 2, -1, 1, Q("2.4 in")),
])
pocket6 = doc.addObject("PartDesign::Pocket", "Pocket005")
body.addObject(pocket6)
pocket6.Profile = sketch7
pocket6.Length = Q("0.125 in")

doc.recompute()
